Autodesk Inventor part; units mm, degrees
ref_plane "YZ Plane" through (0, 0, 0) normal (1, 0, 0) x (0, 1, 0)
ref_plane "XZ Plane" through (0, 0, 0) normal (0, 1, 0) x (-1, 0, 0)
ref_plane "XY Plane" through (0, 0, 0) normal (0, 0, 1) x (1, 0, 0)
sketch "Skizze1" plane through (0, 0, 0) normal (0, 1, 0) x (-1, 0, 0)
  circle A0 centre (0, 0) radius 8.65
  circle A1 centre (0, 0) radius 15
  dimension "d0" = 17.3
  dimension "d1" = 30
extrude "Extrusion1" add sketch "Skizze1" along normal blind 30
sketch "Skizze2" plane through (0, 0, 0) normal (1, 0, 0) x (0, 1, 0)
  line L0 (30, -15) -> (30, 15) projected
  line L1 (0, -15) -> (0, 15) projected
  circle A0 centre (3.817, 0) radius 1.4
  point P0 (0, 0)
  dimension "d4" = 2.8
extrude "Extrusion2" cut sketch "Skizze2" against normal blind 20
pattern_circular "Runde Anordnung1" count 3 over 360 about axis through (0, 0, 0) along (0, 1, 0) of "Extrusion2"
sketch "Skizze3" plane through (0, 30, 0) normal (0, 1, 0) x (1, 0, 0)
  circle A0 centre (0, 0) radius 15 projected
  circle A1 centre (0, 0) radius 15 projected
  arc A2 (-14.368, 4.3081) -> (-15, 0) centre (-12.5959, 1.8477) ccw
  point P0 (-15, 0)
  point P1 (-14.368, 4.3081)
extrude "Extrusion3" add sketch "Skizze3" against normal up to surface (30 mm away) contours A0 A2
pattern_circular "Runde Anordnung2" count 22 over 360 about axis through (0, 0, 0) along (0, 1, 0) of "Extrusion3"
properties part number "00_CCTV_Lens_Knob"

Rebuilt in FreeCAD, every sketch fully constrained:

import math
import FreeCAD as App
import Part
import Sketcher

V = App.Vector

doc = App.newDocument("Part")
params = doc.addObject("Spreadsheet::Sheet", "Params")
for row, (alias, value) in enumerate([
    ("sketch1_diameter", "30 mm"),
    ("sketch1_diameter2", "17.3 mm"),
    ("pad1_length", "30 mm"),
    ("sketch2_diameter", "2.8 mm"),
    ("pocket1_length", "20 mm"),
    ("sketch3_radius", "15 mm"),
    ("pad2_length", "30 mm"),
], start=1):
    params.set(f"A{row}", alias)
    params.set(f"B{row}", "=" + value)
    params.setAlias(f"B{row}", alias)

body = doc.addObject("PartDesign::Body", "Body")

# Sketch on XZ plane
sketch1 = body.newObject("Sketcher::SketchObject", "Sketch")
sketch1.AttachmentSupport = (doc.getObject("XZ_Plane"), [""])
sketch1.MapMode = "FlatFace"
sketch1.addGeometry(Part.Circle(V(0, 0, 0), V(0, 0, 1), 15), False)
sketch1.addGeometry(Part.Circle(V(0, 0, 0), V(0, 0, 1), 9), False)
sketch1.addConstraint(Sketcher.Constraint("Coincident", 0, 3, -1, 1))
sketch1.addConstraint(Sketcher.Constraint("Coincident", 1, 3, -1, 1))
sketch1.addConstraint(Sketcher.Constraint("Diameter", 0, 30.0))
sketch1.addConstraint(Sketcher.Constraint("Diameter", 1, 17.3))
sketch1.setExpression("Constraints[2]", "Params.sketch1_diameter")
sketch1.setExpression("Constraints[3]", "Params.sketch1_diameter2")
pad1 = body.newObject("PartDesign::Pad", "Pad")
pad1.Profile = sketch1
pad1.setExpression("Length", "Params.pad1_length")
pad1.Reversed = True

# Sketch on YZ plane
sketch2 = body.newObject("Sketcher::SketchObject", "Sketch001")
sketch2.AttachmentSupport = (doc.getObject("YZ_Plane"), [""])
sketch2.MapMode = "FlatFace"
sketch2.addGeometry(Part.Circle(V(3.8, 0, 0), V(0, 0, 1), 1.4), False)
sketch2.addConstraint(Sketcher.Constraint("PointOnObject", 0, 3, -1))
sketch2.addConstraint(Sketcher.Constraint("Diameter", 0, 2.8))
sketch2.addConstraint(Sketcher.Constraint("DistanceX", -1, 1, 0, 3, 3.817))
sketch2.setExpression("Constraints[1]", "Params.sketch2_diameter")
pocket1 = body.newObject("PartDesign::Pocket", "Pocket")
pocket1.Profile = sketch2
pocket1.setExpression("Length", "Params.pocket1_length")
doc.recompute()

polarpattern = body.newObject("PartDesign::PolarPattern", "PolarPattern")
polarpattern.Originals = [pocket1]
polarpattern.Axis = (doc.getObject("Y_Axis"), [""])
polarpattern.Angle = 360
polarpattern.Occurrences = 3
body.Tip = polarpattern

# Sketch on XZ plane
sketch3 = body.newObject("Sketcher::SketchObject", "Sketch002")
sketch3.AttachmentSupport = (doc.getObject("XZ_Plane"), [""])
sketch3.MapMode = "FlatFace"
sketch3.AttachmentOffset = App.Placement(V(0, 0, -30), App.Rotation())
sketch3.addGeometry(Part.ArcOfCircle(Part.Circle(V(0, 0, 0), V(0, 0, 1), 15), math.radians(180), math.radians(196.69)), False)
sketch3.addGeometry(Part.ArcOfCircle(Part.Circle(V(-12.6, -1.8, 0), V(0, 0, 1), 3), math.radians(142), math.radians(234)), False)
sketch3.addConstraint(Sketcher.Constraint("Coincident", 0, 1, 1, 1))
sketch3.addConstraint(Sketcher.Constraint("Coincident", 1, 2, 0, 2))
sketch3.addConstraint(Sketcher.Constraint("Coincident", 0, 3, -1, 1))
sketch3.addConstraint(Sketcher.Constraint("PointOnObject", 0, 1, -1))
sketch3.addConstraint(Sketcher.Constraint("Radius", 0, 15.0))
sketch3.addConstraint(Sketcher.Constraint("Radius", 1, 3.0321))
sketch3.addConstraint(Sketcher.Constraint("DistanceX", 1, 3, -1, 1, 12.596))
sketch3.setExpression("Constraints[4]", "Params.sketch3_radius")
pad2 = body.newObject("PartDesign::Pad", "Pad001")
pad2.Profile = sketch3
pad2.setExpression("Length", "Params.pad2_length")
doc.recompute()

polarpattern2 = body.newObject("PartDesign::PolarPattern", "PolarPattern001")
polarpattern2.Originals = [pad2]
polarpattern2.Axis = (doc.getObject("Y_Axis"), [""])
polarpattern2.Angle = 360
polarpattern2.Occurrences = 22
body.Tip = polarpattern2

doc.recompute()
